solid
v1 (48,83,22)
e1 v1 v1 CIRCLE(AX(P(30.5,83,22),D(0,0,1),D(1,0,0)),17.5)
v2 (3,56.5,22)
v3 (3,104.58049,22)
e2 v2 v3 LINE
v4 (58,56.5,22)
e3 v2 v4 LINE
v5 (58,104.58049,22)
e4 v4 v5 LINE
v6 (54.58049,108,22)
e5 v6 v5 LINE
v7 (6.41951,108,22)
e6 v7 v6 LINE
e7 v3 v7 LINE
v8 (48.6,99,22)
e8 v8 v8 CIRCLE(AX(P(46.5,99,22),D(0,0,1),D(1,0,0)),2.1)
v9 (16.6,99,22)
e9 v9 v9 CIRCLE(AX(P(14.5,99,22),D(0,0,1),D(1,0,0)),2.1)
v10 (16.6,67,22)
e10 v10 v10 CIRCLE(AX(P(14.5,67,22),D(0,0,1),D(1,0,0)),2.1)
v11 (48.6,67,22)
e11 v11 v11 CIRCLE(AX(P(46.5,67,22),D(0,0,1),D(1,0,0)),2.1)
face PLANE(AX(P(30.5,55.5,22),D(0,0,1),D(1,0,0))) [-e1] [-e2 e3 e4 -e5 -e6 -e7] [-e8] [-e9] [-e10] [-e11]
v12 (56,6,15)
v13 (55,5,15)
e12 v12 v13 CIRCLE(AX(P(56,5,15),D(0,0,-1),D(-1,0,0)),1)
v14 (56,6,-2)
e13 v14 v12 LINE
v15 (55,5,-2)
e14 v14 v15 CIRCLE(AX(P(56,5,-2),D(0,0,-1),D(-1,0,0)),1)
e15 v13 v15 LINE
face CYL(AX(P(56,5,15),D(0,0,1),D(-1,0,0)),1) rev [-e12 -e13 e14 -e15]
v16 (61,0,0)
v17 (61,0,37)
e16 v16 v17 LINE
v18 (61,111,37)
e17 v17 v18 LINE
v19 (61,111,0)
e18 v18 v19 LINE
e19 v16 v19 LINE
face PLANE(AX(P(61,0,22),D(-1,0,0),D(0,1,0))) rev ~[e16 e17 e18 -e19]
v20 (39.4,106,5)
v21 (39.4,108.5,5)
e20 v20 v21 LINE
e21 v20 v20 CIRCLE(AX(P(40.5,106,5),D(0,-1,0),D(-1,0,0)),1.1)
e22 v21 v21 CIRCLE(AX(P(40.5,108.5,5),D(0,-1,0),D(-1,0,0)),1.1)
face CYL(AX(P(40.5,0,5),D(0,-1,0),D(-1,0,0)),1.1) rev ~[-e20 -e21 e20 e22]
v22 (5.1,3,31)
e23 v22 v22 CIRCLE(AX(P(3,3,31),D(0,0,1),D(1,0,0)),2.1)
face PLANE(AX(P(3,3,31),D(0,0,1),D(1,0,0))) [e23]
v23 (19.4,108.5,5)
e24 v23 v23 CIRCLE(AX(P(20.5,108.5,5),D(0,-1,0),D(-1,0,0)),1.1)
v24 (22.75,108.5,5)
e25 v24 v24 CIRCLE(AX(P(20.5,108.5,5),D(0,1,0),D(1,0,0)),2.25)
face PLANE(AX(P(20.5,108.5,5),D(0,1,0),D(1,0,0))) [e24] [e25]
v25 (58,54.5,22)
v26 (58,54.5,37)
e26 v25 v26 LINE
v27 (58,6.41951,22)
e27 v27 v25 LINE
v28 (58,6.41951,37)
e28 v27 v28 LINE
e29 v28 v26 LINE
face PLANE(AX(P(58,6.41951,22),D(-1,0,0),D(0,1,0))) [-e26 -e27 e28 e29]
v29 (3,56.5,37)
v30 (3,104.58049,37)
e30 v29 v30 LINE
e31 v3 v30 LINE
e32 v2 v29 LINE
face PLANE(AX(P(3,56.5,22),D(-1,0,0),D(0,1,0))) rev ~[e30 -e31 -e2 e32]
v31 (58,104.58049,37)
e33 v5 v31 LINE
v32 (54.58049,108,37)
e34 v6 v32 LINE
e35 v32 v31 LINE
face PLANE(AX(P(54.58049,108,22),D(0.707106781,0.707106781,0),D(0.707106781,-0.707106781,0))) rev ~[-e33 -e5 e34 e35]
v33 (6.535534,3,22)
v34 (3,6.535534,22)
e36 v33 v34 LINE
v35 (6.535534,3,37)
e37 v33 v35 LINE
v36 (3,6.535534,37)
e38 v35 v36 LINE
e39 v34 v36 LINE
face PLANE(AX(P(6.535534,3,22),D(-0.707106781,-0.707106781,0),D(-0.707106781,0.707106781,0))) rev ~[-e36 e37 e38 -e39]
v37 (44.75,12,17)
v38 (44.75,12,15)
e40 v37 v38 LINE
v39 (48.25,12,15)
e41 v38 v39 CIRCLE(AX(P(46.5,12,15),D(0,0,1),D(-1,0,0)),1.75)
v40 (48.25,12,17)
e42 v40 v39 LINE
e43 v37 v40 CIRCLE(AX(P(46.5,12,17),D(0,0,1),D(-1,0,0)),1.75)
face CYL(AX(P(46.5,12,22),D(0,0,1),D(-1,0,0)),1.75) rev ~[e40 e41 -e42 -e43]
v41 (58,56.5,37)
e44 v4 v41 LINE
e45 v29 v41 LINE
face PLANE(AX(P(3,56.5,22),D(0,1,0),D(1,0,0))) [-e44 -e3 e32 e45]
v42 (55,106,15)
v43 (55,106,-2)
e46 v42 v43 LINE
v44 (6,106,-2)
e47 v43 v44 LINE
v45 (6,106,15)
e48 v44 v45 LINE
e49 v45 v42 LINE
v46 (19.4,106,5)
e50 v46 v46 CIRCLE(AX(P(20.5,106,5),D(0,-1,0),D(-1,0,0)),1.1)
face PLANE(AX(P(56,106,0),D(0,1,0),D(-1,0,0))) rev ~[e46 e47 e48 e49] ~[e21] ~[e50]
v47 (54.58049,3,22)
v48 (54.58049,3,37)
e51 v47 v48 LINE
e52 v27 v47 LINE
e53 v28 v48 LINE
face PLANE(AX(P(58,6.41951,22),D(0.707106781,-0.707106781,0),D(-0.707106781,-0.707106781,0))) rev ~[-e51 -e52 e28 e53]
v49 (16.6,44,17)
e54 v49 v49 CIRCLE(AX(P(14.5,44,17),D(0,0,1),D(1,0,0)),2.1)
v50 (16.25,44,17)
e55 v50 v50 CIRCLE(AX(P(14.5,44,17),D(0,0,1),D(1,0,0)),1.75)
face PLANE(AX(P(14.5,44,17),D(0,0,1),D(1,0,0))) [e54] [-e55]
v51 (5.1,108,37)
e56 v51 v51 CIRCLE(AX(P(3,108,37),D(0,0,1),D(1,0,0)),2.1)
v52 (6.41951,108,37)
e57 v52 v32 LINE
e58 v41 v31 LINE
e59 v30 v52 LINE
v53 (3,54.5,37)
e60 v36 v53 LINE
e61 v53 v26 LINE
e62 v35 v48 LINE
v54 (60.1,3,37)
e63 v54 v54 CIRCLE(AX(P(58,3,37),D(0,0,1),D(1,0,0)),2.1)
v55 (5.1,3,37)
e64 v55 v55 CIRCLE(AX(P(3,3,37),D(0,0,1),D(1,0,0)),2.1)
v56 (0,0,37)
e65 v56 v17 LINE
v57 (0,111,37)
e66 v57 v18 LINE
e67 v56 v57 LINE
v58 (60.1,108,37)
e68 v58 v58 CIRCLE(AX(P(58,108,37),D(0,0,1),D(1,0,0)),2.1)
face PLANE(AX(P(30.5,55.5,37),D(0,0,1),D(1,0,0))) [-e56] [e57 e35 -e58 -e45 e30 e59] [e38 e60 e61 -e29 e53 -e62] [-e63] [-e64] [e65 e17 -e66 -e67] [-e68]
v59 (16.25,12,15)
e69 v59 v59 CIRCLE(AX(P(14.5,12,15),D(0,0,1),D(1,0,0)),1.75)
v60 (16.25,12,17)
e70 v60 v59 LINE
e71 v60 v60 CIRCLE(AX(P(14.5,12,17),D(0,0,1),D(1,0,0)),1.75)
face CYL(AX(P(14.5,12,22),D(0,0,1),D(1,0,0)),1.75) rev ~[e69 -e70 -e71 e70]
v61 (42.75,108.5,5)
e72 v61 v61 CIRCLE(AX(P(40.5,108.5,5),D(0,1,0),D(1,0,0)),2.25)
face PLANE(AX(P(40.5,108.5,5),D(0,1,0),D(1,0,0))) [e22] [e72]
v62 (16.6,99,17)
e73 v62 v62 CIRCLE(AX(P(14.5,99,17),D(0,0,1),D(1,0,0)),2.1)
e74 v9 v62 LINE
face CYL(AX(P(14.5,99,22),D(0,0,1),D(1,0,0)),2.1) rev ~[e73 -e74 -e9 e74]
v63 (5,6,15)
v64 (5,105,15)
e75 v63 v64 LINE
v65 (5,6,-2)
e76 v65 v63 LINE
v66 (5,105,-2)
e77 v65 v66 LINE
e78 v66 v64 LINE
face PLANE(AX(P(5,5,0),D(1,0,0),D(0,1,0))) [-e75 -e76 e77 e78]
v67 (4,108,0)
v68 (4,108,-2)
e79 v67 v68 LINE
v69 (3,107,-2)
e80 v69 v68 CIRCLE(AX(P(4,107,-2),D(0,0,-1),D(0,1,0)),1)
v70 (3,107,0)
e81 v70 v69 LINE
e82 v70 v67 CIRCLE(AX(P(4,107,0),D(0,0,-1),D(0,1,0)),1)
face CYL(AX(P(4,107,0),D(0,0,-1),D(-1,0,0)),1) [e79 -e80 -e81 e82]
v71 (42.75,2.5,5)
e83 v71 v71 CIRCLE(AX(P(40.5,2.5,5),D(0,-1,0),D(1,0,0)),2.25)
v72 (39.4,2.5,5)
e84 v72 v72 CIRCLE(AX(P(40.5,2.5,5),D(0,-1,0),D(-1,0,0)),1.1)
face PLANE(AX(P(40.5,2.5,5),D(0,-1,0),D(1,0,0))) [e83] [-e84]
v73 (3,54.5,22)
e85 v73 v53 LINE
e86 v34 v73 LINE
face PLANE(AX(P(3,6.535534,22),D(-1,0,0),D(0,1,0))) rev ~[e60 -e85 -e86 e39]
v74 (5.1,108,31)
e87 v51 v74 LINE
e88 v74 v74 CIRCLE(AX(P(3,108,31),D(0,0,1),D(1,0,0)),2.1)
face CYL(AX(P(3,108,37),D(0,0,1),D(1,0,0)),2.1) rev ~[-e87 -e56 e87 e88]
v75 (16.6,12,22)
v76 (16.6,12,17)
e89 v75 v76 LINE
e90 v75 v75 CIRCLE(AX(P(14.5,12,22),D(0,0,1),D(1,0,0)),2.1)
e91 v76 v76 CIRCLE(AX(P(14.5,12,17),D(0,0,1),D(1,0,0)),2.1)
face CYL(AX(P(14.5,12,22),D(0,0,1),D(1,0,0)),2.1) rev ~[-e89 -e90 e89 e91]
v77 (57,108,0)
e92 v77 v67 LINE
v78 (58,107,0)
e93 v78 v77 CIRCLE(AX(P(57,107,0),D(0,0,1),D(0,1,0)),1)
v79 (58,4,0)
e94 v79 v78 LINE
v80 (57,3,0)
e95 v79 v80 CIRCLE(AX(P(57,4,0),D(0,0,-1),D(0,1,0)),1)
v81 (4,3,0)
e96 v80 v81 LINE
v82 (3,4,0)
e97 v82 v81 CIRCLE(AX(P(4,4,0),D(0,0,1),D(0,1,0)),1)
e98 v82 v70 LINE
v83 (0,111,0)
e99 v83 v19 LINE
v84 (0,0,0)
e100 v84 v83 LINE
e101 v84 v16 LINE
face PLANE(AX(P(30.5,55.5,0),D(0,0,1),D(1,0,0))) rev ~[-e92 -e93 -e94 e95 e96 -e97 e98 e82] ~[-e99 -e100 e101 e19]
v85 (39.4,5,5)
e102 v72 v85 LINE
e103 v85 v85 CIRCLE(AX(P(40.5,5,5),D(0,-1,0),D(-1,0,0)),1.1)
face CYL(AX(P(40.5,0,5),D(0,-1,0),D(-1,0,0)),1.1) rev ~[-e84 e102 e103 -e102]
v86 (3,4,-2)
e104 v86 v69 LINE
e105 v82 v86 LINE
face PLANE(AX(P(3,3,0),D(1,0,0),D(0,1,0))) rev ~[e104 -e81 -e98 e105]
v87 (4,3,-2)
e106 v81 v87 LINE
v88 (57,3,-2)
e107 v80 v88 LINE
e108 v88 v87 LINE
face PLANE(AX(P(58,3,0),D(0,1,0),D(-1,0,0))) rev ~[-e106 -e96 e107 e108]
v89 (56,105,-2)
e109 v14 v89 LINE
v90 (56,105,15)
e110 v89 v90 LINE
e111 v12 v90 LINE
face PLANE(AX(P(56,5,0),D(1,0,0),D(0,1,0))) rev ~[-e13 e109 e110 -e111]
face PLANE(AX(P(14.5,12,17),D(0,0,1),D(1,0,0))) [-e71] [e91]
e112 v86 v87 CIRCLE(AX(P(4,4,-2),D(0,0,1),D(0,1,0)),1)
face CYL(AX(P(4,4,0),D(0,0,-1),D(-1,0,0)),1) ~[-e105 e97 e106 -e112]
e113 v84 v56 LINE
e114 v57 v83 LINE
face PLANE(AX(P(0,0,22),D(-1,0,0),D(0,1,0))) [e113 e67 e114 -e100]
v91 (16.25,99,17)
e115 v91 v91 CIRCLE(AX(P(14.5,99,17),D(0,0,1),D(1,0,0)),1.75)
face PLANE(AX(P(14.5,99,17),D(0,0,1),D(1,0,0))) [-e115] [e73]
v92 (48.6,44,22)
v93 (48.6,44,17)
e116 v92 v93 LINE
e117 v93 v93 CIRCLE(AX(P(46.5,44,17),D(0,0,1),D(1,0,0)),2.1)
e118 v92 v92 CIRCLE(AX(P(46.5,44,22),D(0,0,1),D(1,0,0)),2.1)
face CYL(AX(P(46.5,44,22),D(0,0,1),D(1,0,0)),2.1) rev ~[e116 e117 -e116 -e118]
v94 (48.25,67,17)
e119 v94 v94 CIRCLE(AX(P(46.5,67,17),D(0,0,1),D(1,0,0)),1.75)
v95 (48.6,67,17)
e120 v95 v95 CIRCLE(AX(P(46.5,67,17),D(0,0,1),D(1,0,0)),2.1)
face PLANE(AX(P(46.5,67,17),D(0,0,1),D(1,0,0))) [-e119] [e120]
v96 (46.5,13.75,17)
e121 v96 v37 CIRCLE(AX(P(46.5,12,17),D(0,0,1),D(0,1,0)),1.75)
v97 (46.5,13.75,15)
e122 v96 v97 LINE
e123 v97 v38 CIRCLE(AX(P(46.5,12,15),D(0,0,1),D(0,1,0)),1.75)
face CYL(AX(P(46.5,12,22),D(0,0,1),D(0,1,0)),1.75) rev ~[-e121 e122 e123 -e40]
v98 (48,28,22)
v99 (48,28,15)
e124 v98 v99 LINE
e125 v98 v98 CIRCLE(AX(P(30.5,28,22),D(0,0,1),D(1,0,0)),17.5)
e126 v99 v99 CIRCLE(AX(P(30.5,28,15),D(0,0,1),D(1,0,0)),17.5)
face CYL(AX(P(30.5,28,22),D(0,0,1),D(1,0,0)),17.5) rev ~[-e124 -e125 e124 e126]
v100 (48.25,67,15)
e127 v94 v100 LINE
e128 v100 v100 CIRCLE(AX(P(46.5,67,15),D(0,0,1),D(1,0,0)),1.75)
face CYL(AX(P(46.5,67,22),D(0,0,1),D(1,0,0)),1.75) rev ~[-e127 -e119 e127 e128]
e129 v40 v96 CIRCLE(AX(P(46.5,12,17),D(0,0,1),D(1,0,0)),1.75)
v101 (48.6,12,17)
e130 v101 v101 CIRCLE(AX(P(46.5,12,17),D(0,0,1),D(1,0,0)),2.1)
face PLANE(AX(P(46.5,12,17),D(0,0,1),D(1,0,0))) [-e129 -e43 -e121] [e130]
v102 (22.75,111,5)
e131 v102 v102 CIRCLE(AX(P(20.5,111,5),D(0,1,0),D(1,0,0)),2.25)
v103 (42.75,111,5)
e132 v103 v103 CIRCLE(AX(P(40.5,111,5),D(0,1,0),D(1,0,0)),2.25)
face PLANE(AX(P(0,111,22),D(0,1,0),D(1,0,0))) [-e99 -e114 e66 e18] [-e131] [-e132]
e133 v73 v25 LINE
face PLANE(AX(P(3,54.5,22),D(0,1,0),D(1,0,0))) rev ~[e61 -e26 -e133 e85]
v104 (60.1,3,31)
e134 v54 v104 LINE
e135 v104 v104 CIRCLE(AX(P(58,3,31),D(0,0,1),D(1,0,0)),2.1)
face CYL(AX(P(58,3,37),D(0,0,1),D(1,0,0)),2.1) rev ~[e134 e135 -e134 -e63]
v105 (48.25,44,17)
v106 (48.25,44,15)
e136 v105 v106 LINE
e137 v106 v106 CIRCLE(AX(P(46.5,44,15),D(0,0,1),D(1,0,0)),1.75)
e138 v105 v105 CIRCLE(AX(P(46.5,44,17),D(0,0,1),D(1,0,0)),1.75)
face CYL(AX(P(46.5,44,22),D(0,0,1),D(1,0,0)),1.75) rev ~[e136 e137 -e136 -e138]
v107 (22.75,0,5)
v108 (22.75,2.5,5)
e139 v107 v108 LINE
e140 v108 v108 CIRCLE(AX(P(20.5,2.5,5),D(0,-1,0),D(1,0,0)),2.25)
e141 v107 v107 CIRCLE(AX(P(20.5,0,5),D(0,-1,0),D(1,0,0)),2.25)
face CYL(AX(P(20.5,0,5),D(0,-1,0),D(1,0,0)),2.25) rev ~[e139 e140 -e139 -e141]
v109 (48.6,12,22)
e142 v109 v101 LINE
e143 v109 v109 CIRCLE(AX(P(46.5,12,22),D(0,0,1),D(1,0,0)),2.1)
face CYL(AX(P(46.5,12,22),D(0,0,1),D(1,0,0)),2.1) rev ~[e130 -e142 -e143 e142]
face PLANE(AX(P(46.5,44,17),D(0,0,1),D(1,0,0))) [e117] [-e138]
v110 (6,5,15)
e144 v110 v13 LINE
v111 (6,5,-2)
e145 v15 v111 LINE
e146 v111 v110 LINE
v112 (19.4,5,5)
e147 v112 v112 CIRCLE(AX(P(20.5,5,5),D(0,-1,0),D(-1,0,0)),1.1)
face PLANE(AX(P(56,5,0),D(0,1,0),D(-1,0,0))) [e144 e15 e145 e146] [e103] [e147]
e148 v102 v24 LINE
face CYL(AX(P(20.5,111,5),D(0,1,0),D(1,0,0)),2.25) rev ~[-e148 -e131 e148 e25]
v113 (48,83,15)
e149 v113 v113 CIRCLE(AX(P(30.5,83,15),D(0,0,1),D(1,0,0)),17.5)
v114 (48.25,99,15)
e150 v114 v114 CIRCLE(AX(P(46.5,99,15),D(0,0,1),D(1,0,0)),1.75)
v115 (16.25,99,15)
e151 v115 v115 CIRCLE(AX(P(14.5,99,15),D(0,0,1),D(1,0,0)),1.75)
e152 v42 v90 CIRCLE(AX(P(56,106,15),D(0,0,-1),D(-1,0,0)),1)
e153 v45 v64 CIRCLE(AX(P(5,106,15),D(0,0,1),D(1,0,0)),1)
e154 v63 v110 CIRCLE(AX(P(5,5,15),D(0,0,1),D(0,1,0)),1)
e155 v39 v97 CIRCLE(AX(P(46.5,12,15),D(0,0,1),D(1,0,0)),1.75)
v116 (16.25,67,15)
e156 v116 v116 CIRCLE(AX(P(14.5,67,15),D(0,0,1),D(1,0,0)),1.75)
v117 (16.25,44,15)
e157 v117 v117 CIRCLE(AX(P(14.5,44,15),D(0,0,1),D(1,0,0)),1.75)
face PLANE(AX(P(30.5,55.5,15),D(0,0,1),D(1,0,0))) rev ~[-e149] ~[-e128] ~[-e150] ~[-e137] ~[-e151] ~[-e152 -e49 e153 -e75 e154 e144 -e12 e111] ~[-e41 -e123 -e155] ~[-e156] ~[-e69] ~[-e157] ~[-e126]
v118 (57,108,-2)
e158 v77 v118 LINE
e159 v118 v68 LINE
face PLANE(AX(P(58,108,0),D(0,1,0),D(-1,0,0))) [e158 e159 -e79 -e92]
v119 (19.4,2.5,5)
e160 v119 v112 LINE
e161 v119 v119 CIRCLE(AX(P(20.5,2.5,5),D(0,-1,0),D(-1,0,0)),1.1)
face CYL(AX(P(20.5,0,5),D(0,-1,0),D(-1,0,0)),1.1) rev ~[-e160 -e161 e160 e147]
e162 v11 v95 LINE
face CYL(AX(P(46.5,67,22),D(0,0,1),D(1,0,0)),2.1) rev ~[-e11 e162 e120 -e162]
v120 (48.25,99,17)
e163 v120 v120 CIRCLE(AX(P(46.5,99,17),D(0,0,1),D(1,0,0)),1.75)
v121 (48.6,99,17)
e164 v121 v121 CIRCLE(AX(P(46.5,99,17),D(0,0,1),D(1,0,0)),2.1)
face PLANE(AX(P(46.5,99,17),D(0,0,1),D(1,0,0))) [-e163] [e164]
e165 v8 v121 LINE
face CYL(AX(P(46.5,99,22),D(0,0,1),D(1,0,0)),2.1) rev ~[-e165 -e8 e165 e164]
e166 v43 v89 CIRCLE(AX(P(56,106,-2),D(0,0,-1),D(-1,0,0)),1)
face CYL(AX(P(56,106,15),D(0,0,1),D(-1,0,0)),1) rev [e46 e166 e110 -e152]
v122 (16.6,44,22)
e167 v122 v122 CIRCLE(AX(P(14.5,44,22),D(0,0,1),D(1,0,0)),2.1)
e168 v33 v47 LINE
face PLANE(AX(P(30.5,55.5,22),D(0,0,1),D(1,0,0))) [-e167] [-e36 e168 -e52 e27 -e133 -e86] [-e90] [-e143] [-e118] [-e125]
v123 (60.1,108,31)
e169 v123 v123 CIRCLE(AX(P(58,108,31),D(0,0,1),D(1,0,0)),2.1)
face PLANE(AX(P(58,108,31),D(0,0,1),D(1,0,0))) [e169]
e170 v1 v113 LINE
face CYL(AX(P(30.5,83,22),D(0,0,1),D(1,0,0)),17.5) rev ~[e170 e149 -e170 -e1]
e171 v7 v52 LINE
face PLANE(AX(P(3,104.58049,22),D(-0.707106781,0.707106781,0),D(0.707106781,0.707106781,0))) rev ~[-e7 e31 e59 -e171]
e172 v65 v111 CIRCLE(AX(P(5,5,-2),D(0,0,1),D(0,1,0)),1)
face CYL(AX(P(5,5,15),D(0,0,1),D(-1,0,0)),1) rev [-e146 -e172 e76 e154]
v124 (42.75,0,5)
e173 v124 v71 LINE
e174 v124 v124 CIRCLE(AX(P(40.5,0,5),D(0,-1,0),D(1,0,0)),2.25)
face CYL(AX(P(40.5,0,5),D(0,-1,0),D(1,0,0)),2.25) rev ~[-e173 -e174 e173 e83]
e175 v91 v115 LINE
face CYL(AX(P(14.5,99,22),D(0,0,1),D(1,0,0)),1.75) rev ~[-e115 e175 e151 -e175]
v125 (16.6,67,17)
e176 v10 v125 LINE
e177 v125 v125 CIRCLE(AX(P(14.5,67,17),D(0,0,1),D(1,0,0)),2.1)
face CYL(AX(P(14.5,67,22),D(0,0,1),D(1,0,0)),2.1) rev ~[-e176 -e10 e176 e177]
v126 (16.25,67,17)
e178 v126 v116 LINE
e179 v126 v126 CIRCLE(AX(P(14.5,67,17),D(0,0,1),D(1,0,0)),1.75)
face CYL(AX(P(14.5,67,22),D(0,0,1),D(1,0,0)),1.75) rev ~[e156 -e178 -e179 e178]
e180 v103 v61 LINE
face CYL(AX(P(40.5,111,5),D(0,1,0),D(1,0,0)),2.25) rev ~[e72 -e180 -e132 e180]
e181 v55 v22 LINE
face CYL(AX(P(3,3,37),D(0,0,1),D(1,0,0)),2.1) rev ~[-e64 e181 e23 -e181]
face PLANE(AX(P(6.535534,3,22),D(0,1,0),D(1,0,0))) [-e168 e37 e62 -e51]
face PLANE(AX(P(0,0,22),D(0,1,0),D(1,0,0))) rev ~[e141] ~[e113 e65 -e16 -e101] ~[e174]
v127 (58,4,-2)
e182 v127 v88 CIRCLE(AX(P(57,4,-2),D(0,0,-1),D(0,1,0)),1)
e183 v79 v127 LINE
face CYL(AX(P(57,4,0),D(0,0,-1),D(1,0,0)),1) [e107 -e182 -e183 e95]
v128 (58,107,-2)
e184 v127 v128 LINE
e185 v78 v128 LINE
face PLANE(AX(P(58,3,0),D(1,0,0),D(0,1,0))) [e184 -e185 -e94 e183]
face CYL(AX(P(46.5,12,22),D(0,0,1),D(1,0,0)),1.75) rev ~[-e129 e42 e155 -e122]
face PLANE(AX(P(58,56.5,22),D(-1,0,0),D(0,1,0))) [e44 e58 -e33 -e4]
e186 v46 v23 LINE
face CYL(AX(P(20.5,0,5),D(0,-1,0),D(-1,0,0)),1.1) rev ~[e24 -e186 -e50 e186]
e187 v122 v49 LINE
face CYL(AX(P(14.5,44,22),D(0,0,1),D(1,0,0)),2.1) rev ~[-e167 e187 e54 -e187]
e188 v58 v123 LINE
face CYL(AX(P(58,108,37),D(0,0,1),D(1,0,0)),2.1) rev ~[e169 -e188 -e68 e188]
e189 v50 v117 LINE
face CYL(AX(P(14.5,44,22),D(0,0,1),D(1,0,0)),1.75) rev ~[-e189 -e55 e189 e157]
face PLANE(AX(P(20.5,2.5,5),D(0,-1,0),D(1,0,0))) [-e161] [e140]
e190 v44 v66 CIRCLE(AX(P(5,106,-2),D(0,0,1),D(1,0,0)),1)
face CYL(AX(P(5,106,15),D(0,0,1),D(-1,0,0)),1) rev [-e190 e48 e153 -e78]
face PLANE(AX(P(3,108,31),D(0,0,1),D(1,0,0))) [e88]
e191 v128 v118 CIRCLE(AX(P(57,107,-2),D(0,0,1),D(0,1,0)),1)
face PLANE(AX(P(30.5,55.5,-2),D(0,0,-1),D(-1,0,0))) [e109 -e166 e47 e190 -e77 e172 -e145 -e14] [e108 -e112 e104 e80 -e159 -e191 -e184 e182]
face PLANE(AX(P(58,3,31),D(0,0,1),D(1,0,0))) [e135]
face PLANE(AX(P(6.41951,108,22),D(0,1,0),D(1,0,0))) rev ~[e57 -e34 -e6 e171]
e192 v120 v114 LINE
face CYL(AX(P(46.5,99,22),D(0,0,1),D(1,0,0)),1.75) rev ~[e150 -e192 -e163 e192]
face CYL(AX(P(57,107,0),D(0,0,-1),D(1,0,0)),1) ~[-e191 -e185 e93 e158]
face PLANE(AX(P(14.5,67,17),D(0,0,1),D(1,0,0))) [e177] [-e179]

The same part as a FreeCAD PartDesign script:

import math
import FreeCAD as App
import Part
import Sketcher
Q = App.Units.Quantity


def edges_at(feature, points):
    """Names of the edges that pass closest to the given points."""
    edges = feature.Shape.Edges
    near = lambda p: min(range(len(edges)), key=lambda i: edges[i].distToShape(Part.Vertex(*p))[0])
    return sorted({f"Edge{near(p) + 1}" for p in points})

doc = App.newDocument("Part")
params = doc.addObject("Spreadsheet::Sheet", "Params")
for row, (alias, value) in enumerate([
    ("sketch1_width", "61 mm"),
    ("sketch1_width2", "51 mm"),
    ("sketch1_height", "111 mm"),
    ("sketch1_height2", "101 mm"),
    ("pad1_length", "15 mm"),
    ("sketch2_width", "61 mm"),
    ("sketch2_height", "111 mm"),
    ("pad2_length", "7 mm"),
    ("sketch3_diameter", "35 mm"),
    ("sketch3_diameter2", "3.5 mm"),
    ("sketch4_diameter", "4.2 mm"),
    ("pocket2_length", "5 mm"),
    ("sketch5_width", "55 mm"),
    ("sketch5_width2", "51 mm"),
    ("sketch5_height", "105 mm"),
    ("sketch5_height2", "101 mm"),
    ("pad3_length", "2 mm"),
    ("fillet_radius", "1 mm"),
    ("sketch6_diameter", "2.2 mm"),
    ("sketch7_diameter", "4.5 mm"),
    ("pocket4_length", "2.5 mm"),
    ("sketch8_diameter", "4.5 mm"),
    ("pocket5_length", "2.5 mm"),
    ("sketch9_diameter", "2 mm"),
    ("pocket6_length", "17 mm"),
    ("sketch10_width", "61 mm"),
    ("sketch10_width2", "55 mm"),
    ("sketch10_height", "111 mm"),
    ("sketch10_length", "5 mm"),
    ("pad4_length", "15 mm"),
    ("sketch11_diameter", "4.2 mm"),
    ("pocket7_length", "6 mm"),
], start=1):
    params.set(f"A{row}", alias)
    params.set(f"B{row}", "=" + value)
    params.setAlias(f"B{row}", alias)

body = doc.addObject("PartDesign::Body", "Body")

# Sketch on XY plane
sketch1 = doc.addObject("Sketcher::SketchObject", "Sketch")
body.addObject(sketch1)
sketch1.AttachmentSupport = (doc.XY_Plane, [""])
sketch1.MapMode = "FlatFace"
sketch1.addGeometry([
    Part.LineSegment(App.Vector(0, 111, 0), App.Vector(0, 0, 0)),  # 0
    Part.LineSegment(App.Vector(0, 0, 0), App.Vector(61, 0, 0)),  # 1
    Part.LineSegment(App.Vector(61, 0, 0), App.Vector(61, 111, 0)),  # 2
    Part.LineSegment(App.Vector(61, 111, 0), App.Vector(0, 111, 0)),  # 3
    Part.LineSegment(App.Vector(56, 5, 0), App.Vector(5, 5, 0)),  # 4
    Part.LineSegment(App.Vector(5, 5, 0), App.Vector(5, 106, 0)),  # 5
    Part.LineSegment(App.Vector(5, 106, 0), App.Vector(56, 106, 0)),  # 6
    Part.LineSegment(App.Vector(56, 106, 0), App.Vector(56, 5, 0)),  # 7
], False)
sketch1.addConstraint([
    Sketcher.Constraint("Coincident", 0, 2, 1, 1),
    Sketcher.Constraint("Coincident", 1, 2, 2, 1),
    Sketcher.Constraint("Coincident", 2, 2, 3, 1),
    Sketcher.Constraint("Coincident", 3, 2, 0, 1),
    Sketcher.Constraint("Coincident", 4, 2, 5, 1),
    Sketcher.Constraint("Coincident", 5, 2, 6, 1),
    Sketcher.Constraint("Coincident", 6, 2, 7, 1),
    Sketcher.Constraint("Coincident", 7, 2, 4, 1),
    Sketcher.Constraint("Vertical", 0),
    Sketcher.Constraint("Horizontal", 1),
    Sketcher.Constraint("Vertical", 2),
    Sketcher.Constraint("Horizontal", 3),
    Sketcher.Constraint("Horizontal", 4),
    Sketcher.Constraint("Vertical", 5),
    Sketcher.Constraint("Horizontal", 6),
    Sketcher.Constraint("Vertical", 7),
    Sketcher.Constraint("Coincident", 0, 2, -1, 1),
    Sketcher.Constraint("DistanceX", 1, 1, 1, 2, Q("61 mm")),
    Sketcher.Constraint("DistanceX", 4, 2, 4, 1, Q("51 mm")),
    Sketcher.Constraint("DistanceY", 0, 2, 0, 1, Q("111 mm")),
    Sketcher.Constraint("DistanceY", 5, 1, 5, 2, Q("101 mm")),
    Sketcher.Constraint("DistanceX", -1, 1, 4, 2, Q("5 mm")),
    Sketcher.Constraint("DistanceY", -1, 1, 4, 2, Q("5 mm")),
])
sketch1.setExpression("Constraints[17]", "Params.sketch1_width")
sketch1.setExpression("Constraints[18]", "Params.sketch1_width2")
sketch1.setExpression("Constraints[19]", "Params.sketch1_height")
sketch1.setExpression("Constraints[20]", "Params.sketch1_height2")
pad1 = doc.addObject("PartDesign::Pad", "Pad")
body.addObject(pad1)
pad1.Profile = sketch1
pad1.setExpression("Length", "Params.pad1_length")

# Sketch on XY plane
sketch2 = doc.addObject("Sketcher::SketchObject", "Sketch001")
body.addObject(sketch2)
sketch2.AttachmentSupport = (doc.XY_Plane, [""])
sketch2.MapMode = "FlatFace"
sketch2.AttachmentOffset = App.Placement(App.Vector(0, 0, 15), App.Rotation())
sketch2.addGeometry([
    Part.LineSegment(App.Vector(0, 111, 0), App.Vector(0, 0, 0)),
    Part.LineSegment(App.Vector(0, 0, 0), App.Vector(61, 0, 0)),
    Part.LineSegment(App.Vector(61, 0, 0), App.Vector(61, 111, 0)),
    Part.LineSegment(App.Vector(61, 111, 0), App.Vector(0, 111, 0)),
], False)
sketch2.addConstraint([
    Sketcher.Constraint("Coincident", 0, 2, 1, 1),
    Sketcher.Constraint("Coincident", 1, 2, 2, 1),
    Sketcher.Constraint("Coincident", 2, 2, 3, 1),
    Sketcher.Constraint("Coincident", 3, 2, 0, 1),
    Sketcher.Constraint("Vertical", 0),
    Sketcher.Constraint("Horizontal", 1),
    Sketcher.Constraint("Vertical", 2),
    Sketcher.Constraint("Horizontal", 3),
    Sketcher.Constraint("Coincident", 0, 2, -1, 1),
    Sketcher.Constraint("DistanceX", 1, 1, 1, 2, Q("61 mm")),
    Sketcher.Constraint("DistanceY", 0, 2, 0, 1, Q("111 mm")),
])
sketch2.setExpression("Constraints[9]", "Params.sketch2_width")
sketch2.setExpression("Constraints[10]", "Params.sketch2_height")
pad2 = doc.addObject("PartDesign::Pad", "Pad001")
body.addObject(pad2)
pad2.Profile = sketch2
pad2.setExpression("Length", "Params.pad2_length")

# Sketch on XY plane
sketch3 = doc.addObject("Sketcher::SketchObject", "Sketch002")
body.addObject(sketch3)
sketch3.AttachmentSupport = (doc.XY_Plane, [""])
sketch3.MapMode = "FlatFace"
sketch3.AttachmentOffset = App.Placement(App.Vector(0, 0, 22), App.Rotation())
sketch3.addGeometry([
    Part.Circle(App.Vector(30.5, 83, 0), App.Vector(0, 0, 1), 17.5),  # 0
    Part.Circle(App.Vector(30.5, 28, 0), App.Vector(0, 0, 1), 17.5),  # 1
    Part.ArcOfCircle(Part.Circle(App.Vector(46.5, 12, 0), App.Vector(0, 0, 1), 1.75), math.radians(90), math.radians(180)),  # 2
    Part.ArcOfCircle(Part.Circle(App.Vector(46.5, 12, 0), App.Vector(0, 0, 1), 1.75), math.radians(180), math.radians(360)),  # 3
    Part.ArcOfCircle(Part.Circle(App.Vector(46.5, 12, 0), App.Vector(0, 0, 1), 1.75), math.radians(0), math.radians(90)),  # 4
    Part.Circle(App.Vector(46.5, 99, 0), App.Vector(0, 0, 1), 1.75),  # 5
    Part.Circle(App.Vector(14.5, 99, 0), App.Vector(0, 0, 1), 1.75),  # 6
    Part.Circle(App.Vector(14.5, 67, 0), App.Vector(0, 0, 1), 1.75),  # 7
    Part.Circle(App.Vector(46.5, 67, 0), App.Vector(0, 0, 1), 1.75),  # 8
    Part.Circle(App.Vector(46.5, 44, 0), App.Vector(0, 0, 1), 1.75),  # 9
    Part.Circle(App.Vector(14.5, 44, 0), App.Vector(0, 0, 1), 1.75),  # 10
    Part.Circle(App.Vector(14.5, 12, 0), App.Vector(0, 0, 1), 1.75),  # 11
], False)
sketch3.addConstraint([
    Sketcher.Constraint("Tangent", 2, 2, 3, 1),
    Sketcher.Constraint("Tangent", 3, 2, 4, 1),
    Sketcher.Constraint("Tangent", 4, 2, 2, 1),
    Sketcher.Constraint("Equal", 0, 1),
    Sketcher.Constraint("Equal", 4, 5),
    Sketcher.Constraint("Equal", 5, 6),
    Sketcher.Constraint("Equal", 6, 7),
    Sketcher.Constraint("Equal", 7, 8),
    Sketcher.Constraint("Equal", 8, 9),
    Sketcher.Constraint("Equal", 9, 10),
    Sketcher.Constraint("Equal", 10, 11),
    Sketcher.Constraint("Horizontal", 5, 3, 6, 3),
    Sketcher.Constraint("Horizontal", 7, 3, 8, 3),
    Sketcher.Constraint("Horizontal", 9, 3, 10, 3),
    Sketcher.Constraint("Horizontal", 4, 3, 11, 3),
    Sketcher.Constraint("Horizontal", 11, 3, 2, 2),
    Sketcher.Constraint("Horizontal", 2, 2, 3, 2),
    Sketcher.Constraint("Vertical", 0, 3, 1, 3),
    Sketcher.Constraint("Vertical", 4, 3, 5, 3),
    Sketcher.Constraint("Vertical", 6, 3, 7, 3),
    Sketcher.Constraint("Vertical", 5, 3, 8, 3),
    Sketcher.Constraint("Vertical", 8, 3, 9, 3),
    Sketcher.Constraint("Vertical", 7, 3, 10, 3),
    Sketcher.Constraint("Vertical", 10, 3, 11, 3),
    Sketcher.Constraint("Vertical", 9, 3, 4, 2),
    Sketcher.Constraint("Diameter", 0, Q("35 mm")),
    Sketcher.Constraint("Diameter", 5, Q("3.5 mm")),
    Sketcher.Constraint("DistanceY", -1, 1, 0, 3, Q("83 mm")),
    Sketcher.Constraint("DistanceY", -1, 1, 1, 3, Q("28 mm")),
    Sketcher.Constraint("DistanceY", -1, 1, 2, 3, Q("12 mm")),
    Sketcher.Constraint("DistanceY", -1, 1, 5, 3, Q("99 mm")),
    Sketcher.Constraint("DistanceY", -1, 1, 7, 3, Q("67 mm")),
    Sketcher.Constraint("DistanceY", -1, 1, 9, 3, Q("44 mm")),
    Sketcher.Constraint("DistanceX", 1, 3, 2, 3, Q("16 mm")),
    Sketcher.Constraint("DistanceX", 6, 3, 0, 3, Q("16 mm")),
    Sketcher.Constraint("DistanceX", -1, 1, 0, 3, Q("30.5 mm")),
])
sketch3.setExpression("Constraints[25]", "Params.sketch3_diameter")
sketch3.setExpression("Constraints[26]", "Params.sketch3_diameter2")
pocket1 = doc.addObject("PartDesign::Pocket", "Pocket")
body.addObject(pocket1)
pocket1.Profile = sketch3
pocket1.Type = "ThroughAll"

# Sketch on XY plane
sketch4 = doc.addObject("Sketcher::SketchObject", "Sketch003")
body.addObject(sketch4)
sketch4.AttachmentSupport = (doc.XY_Plane, [""])
sketch4.MapMode = "FlatFace"
sketch4.AttachmentOffset = App.Placement(App.Vector(0, 0, 22), App.Rotation())
sketch4.addGeometry([
    Part.Circle(App.Vector(14.5, 99, 0), App.Vector(0, 0, 1), 2.1),  # 0
    Part.Circle(App.Vector(46.5, 99, 0), App.Vector(0, 0, 1), 2.1),  # 1
    Part.Circle(App.Vector(46.5, 67, 0), App.Vector(0, 0, 1), 2.1),  # 2
    Part.Circle(App.Vector(46.5, 44, 0), App.Vector(0, 0, 1), 2.1),  # 3
    Part.Circle(App.Vector(14.5, 67, 0), App.Vector(0, 0, 1), 2.1),  # 4
    Part.Circle(App.Vector(14.5, 44, 0), App.Vector(0, 0, 1), 2.1),  # 5
    Part.Circle(App.Vector(14.5, 12, 0), App.Vector(0, 0, 1), 2.1),  # 6
    Part.Circle(App.Vector(46.5, 12, 0), App.Vector(0, 0, 1), 2.1),  # 7
], False)
sketch4.addConstraint([
    Sketcher.Constraint("Equal", 0, 1),
    Sketcher.Constraint("Equal", 1, 2),
    Sketcher.Constraint("Equal", 2, 3),
    Sketcher.Constraint("Equal", 3, 4),
    Sketcher.Constraint("Equal", 4, 5),
    Sketcher.Constraint("Equal", 5, 6),
    Sketcher.Constraint("Equal", 6, 7),
    Sketcher.Constraint("Horizontal", 0, 3, 1, 3),
    Sketcher.Constraint("Horizontal", 2, 3, 4, 3),
    Sketcher.Constraint("Horizontal", 3, 3, 5, 3),
    Sketcher.Constraint("Horizontal", 6, 3, 7, 3),
    Sketcher.Constraint("Vertical", 1, 3, 2, 3),
    Sketcher.Constraint("Vertical", 2, 3, 3, 3),
    Sketcher.Constraint("Vertical", 0, 3, 4, 3),
    Sketcher.Constraint("Vertical", 4, 3, 5, 3),
    Sketcher.Constraint("Vertical", 5, 3, 6, 3),
    Sketcher.Constraint("Vertical", 3, 3, 7, 3),
    Sketcher.Constraint("Diameter", 0, Q("4.2 mm")),
    Sketcher.Constraint("DistanceY", -1, 1, 0, 3, Q("99 mm")),
    Sketcher.Constraint("DistanceY", -1, 1, 2, 3, Q("67 mm")),
    Sketcher.Constraint("DistanceY", -1, 1, 3, 3, Q("44 mm")),
    Sketcher.Constraint("DistanceY", -1, 1, 6, 3, Q("12 mm")),
    Sketcher.Constraint("DistanceX", 0, 3, 1, 3, Q("32 mm")),
    Sketcher.Constraint("DistanceX", -1, 1, 0, 3, Q("14.5 mm")),
])
sketch4.setExpression("Constraints[17]", "Params.sketch4_diameter")
pocket2 = doc.addObject("PartDesign::Pocket", "Pocket001")
body.addObject(pocket2)
pocket2.Profile = sketch4
pocket2.setExpression("Length", "Params.pocket2_length")

# Sketch on XY plane
sketch5 = doc.addObject("Sketcher::SketchObject", "Sketch004")
body.addObject(sketch5)
sketch5.AttachmentSupport = (doc.XY_Plane, [""])
sketch5.MapMode = "FlatFace"
sketch5.addGeometry([
    Part.LineSegment(App.Vector(58, 108, 0), App.Vector(58, 3, 0)),  # 0
    Part.LineSegment(App.Vector(58, 3, 0), App.Vector(3, 3, 0)),  # 1
    Part.LineSegment(App.Vector(3, 3, 0), App.Vector(3, 108, 0)),  # 2
    Part.LineSegment(App.Vector(3, 108, 0), App.Vector(58, 108, 0)),  # 3
    Part.LineSegment(App.Vector(5, 5, 0), App.Vector(56, 5, 0)),  # 4
    Part.LineSegment(App.Vector(56, 5, 0), App.Vector(56, 106, 0)),  # 5
    Part.LineSegment(App.Vector(56, 106, 0), App.Vector(5, 106, 0)),  # 6
    Part.LineSegment(App.Vector(5, 106, 0), App.Vector(5, 5, 0)),  # 7
], False)
sketch5.addConstraint([
    Sketcher.Constraint("Coincident", 0, 2, 1, 1),
    Sketcher.Constraint("Coincident", 1, 2, 2, 1),
    Sketcher.Constraint("Coincident", 2, 2, 3, 1),
    Sketcher.Constraint("Coincident", 3, 2, 0, 1),
    Sketcher.Constraint("Coincident", 4, 2, 5, 1),
    Sketcher.Constraint("Coincident", 5, 2, 6, 1),
    Sketcher.Constraint("Coincident", 6, 2, 7, 1),
    Sketcher.Constraint("Coincident", 7, 2, 4, 1),
    Sketcher.Constraint("Vertical", 0),
    Sketcher.Constraint("Horizontal", 1),
    Sketcher.Constraint("Vertical", 2),
    Sketcher.Constraint("Horizontal", 3),
    Sketcher.Constraint("Horizontal", 4),
    Sketcher.Constraint("Vertical", 5),
    Sketcher.Constraint("Horizontal", 6),
    Sketcher.Constraint("Vertical", 7),
    Sketcher.Constraint("DistanceX", 1, 2, 1, 1, Q("55 mm")),
    Sketcher.Constraint("DistanceX", 4, 1, 4, 2, Q("51 mm")),
    Sketcher.Constraint("DistanceY", 0, 2, 0, 1, Q("105 mm")),
    Sketcher.Constraint("DistanceY", 5, 1, 5, 2, Q("101 mm")),
    Sketcher.Constraint("DistanceX", -1, 1, 0, 2, Q("58 mm")),
    Sketcher.Constraint("DistanceY", -1, 1, 0, 2, Q("3 mm")),
    Sketcher.Constraint("DistanceX", -1, 1, 4, 2, Q("56 mm")),
    Sketcher.Constraint("DistanceY", -1, 1, 4, 2, Q("5 mm")),
])
sketch5.setExpression("Constraints[16]", "Params.sketch5_width")
sketch5.setExpression("Constraints[17]", "Params.sketch5_width2")
sketch5.setExpression("Constraints[18]", "Params.sketch5_height")
sketch5.setExpression("Constraints[19]", "Params.sketch5_height2")
pad3 = doc.addObject("PartDesign::Pad", "Pad002")
body.addObject(pad3)
pad3.Profile = sketch5
pad3.setExpression("Length", "Params.pad3_length")
pad3.Reversed = True
doc.recompute()

fillet = doc.addObject("PartDesign::Fillet", "Fillet")
body.addObject(fillet)
fillet.Base = (pad3, edges_at(pad3, [
    (58, 3, -1),
    (3, 3, -1),
    (3, 108, -1),
    (58, 108, -1),
]))
fillet.setExpression("Radius", "Params.fillet_radius")

# Sketch on XZ plane
sketch6 = doc.addObject("Sketcher::SketchObject", "Sketch005")
body.addObject(sketch6)
sketch6.AttachmentSupport = (doc.XZ_Plane, [""])
sketch6.MapMode = "FlatFace"
sketch6.addGeometry([
    Part.Circle(App.Vector(20.5, 5, 0), App.Vector(0, 0, 1), 1.1),
    Part.Circle(App.Vector(40.5, 5, 0), App.Vector(0, 0, 1), 1.1),
], False)
sketch6.addConstraint([
    Sketcher.Constraint("Equal", 0, 1),
    Sketcher.Constraint("Horizontal", 0, 3, 1, 3),
    Sketcher.Constraint("Diameter", 0, Q("2.2 mm")),
    Sketcher.Constraint("DistanceY", -1, 1, 0, 3, Q("5 mm")),
    Sketcher.Constraint("DistanceX", 0, 3, 1, 3, Q("20 mm")),
    Sketcher.Constraint("DistanceX", -1, 1, 0, 3, Q("20.5 mm")),
])
sketch6.setExpression("Constraints[2]", "Params.sketch6_diameter")
pocket3 = doc.addObject("PartDesign::Pocket", "Pocket002")
body.addObject(pocket3)
pocket3.Profile = sketch6
pocket3.Type = "ThroughAll"

# Sketch on XZ plane
sketch7 = doc.addObject("Sketcher::SketchObject", "Sketch006")
body.addObject(sketch7)
sketch7.AttachmentSupport = (doc.XZ_Plane, [""])
sketch7.MapMode = "FlatFace"
sketch7.addGeometry([
    Part.Circle(App.Vector(20.5, 5, 0), App.Vector(0, 0, 1), 2.25),
    Part.Circle(App.Vector(40.5, 5, 0), App.Vector(0, 0, 1), 2.25),
], False)
sketch7.addConstraint([
    Sketcher.Constraint("Equal", 0, 1),
    Sketcher.Constraint("Horizontal", 0, 3, 1, 3),
    Sketcher.Constraint("Diameter", 0, Q("4.5 mm")),
    Sketcher.Constraint("DistanceY", -1, 1, 0, 3, Q("5 mm")),
    Sketcher.Constraint("DistanceX", 0, 3, 1, 3, Q("20 mm")),
    Sketcher.Constraint("DistanceX", -1, 1, 0, 3, Q("20.5 mm")),
])
sketch7.setExpression("Constraints[2]", "Params.sketch7_diameter")
pocket4 = doc.addObject("PartDesign::Pocket", "Pocket003")
body.addObject(pocket4)
pocket4.Profile = sketch7
pocket4.setExpression("Length", "Params.pocket4_length")

# Sketch on XZ plane
sketch8 = doc.addObject("Sketcher::SketchObject", "Sketch007")
body.addObject(sketch8)
sketch8.AttachmentSupport = (doc.XZ_Plane, [""])
sketch8.MapMode = "FlatFace"
sketch8.AttachmentOffset = App.Placement(App.Vector(0, 0, -111), App.Rotation())
sketch8.addGeometry([
    Part.Circle(App.Vector(40.5, 5, 0), App.Vector(0, 0, 1), 2.25),
    Part.Circle(App.Vector(20.5, 5, 0), App.Vector(0, 0, 1), 2.25),
], False)
sketch8.addConstraint([
    Sketcher.Constraint("Equal", 0, 1),
    Sketcher.Constraint("Horizontal", 0, 3, 1, 3),
    Sketcher.Constraint("Diameter", 0, Q("4.5 mm")),
    Sketcher.Constraint("DistanceY", -1, 1, 0, 3, Q("5 mm")),
    Sketcher.Constraint("DistanceX", 1, 3, 0, 3, Q("20 mm")),
    Sketcher.Constraint("DistanceX", -1, 1, 0, 3, Q("40.5 mm")),
])
sketch8.setExpression("Constraints[2]", "Params.sketch8_diameter")
pocket5 = doc.addObject("PartDesign::Pocket", "Pocket004")
body.addObject(pocket5)
pocket5.Profile = sketch8
pocket5.setExpression("Length", "Params.pocket5_length")
pocket5.Reversed = True

# Sketch on XY plane
sketch9 = doc.addObject("Sketcher::SketchObject", "Sketch008")
body.addObject(sketch9)
sketch9.AttachmentSupport = (doc.XY_Plane, [""])
sketch9.MapMode = "FlatFace"
sketch9.AttachmentOffset = App.Placement(App.Vector(0, 0, 15), App.Rotation())
sketch9.addGeometry([
    Part.Circle(App.Vector(56, 106, 0), App.Vector(0, 0, 1), 1),
    Part.Circle(App.Vector(5, 106, 0), App.Vector(0, 0, 1), 1),
    Part.Circle(App.Vector(5, 5, 0), App.Vector(0, 0, 1), 1),
    Part.Circle(App.Vector(56, 5, 0), App.Vector(0, 0, 1), 1),
], False)
sketch9.addConstraint([
    Sketcher.Constraint("Equal", 0, 1),
    Sketcher.Constraint("Equal", 1, 2),
    Sketcher.Constraint("Equal", 2, 3),
    Sketcher.Constraint("Horizontal", 0, 3, 1, 3),
    Sketcher.Constraint("Horizontal", 2, 3, 3, 3),
    Sketcher.Constraint("Vertical", 1, 3, 2, 3),
    Sketcher.Constraint("Vertical", 0, 3, 3, 3),
    Sketcher.Constraint("Diameter", 0, Q("2 mm")),
    Sketcher.Constraint("DistanceX", -1, 1, 0, 3, Q("56 mm")),
    Sketcher.Constraint("DistanceY", -1, 1, 0, 3, Q("106 mm")),
    Sketcher.Constraint("DistanceX", -1, 1, 1, 3, Q("5 mm")),
    Sketcher.Constraint("DistanceY", -1, 1, 2, 3, Q("5 mm")),
])
sketch9.setExpression("Constraints[7]", "Params.sketch9_diameter")
pocket6 = doc.addObject("PartDesign::Pocket", "Pocket005")
body.addObject(pocket6)
pocket6.Profile = sketch9
pocket6.setExpression("Length", "Params.pocket6_length")

# Sketch on XY plane
sketch10 = doc.addObject("Sketcher::SketchObject", "Sketch009")
body.addObject(sketch10)
sketch10.AttachmentSupport = (doc.XY_Plane, [""])
sketch10.MapMode = "FlatFace"
sketch10.AttachmentOffset = App.Placement(App.Vector(0, 0, 22), App.Rotation())
sketch10.addGeometry([
    Part.LineSegment(App.Vector(0, 111, 0), App.Vector(0, 0, 0)),  # 0
    Part.LineSegment(App.Vector(0, 0, 0), App.Vector(61, 0, 0)),  # 1
    Part.LineSegment(App.Vector(61, 0, 0), App.Vector(61, 111, 0)),  # 2
    Part.LineSegment(App.Vector(61, 111, 0), App.Vector(0, 111, 0)),  # 3
    Part.LineSegment(App.Vector(54.58049, 3, 0), App.Vector(6.535534, 3, 0)),  # 4
    Part.LineSegment(App.Vector(6.535534, 3, 0), App.Vector(3, 6.535534, 0)),  # 5
    Part.LineSegment(App.Vector(3, 6.535534, 0), App.Vector(3, 54.5, 0)),  # 6
    Part.LineSegment(App.Vector(3, 54.5, 0), App.Vector(58, 54.5, 0)),  # 7
    Part.LineSegment(App.Vector(58, 54.5, 0), App.Vector(58, 6.41951, 0)),  # 8
    Part.LineSegment(App.Vector(58, 6.41951, 0), App.Vector(54.58049, 3, 0)),  # 9
    Part.LineSegment(App.Vector(3, 56.5, 0), App.Vector(3, 104.58049, 0)),  # 10
    Part.LineSegment(App.Vector(3, 104.58049, 0), App.Vector(6.41951, 108, 0)),  # 11
    Part.LineSegment(App.Vector(6.41951, 108, 0), App.Vector(54.58049, 108, 0)),  # 12
    Part.LineSegment(App.Vector(54.58049, 108, 0), App.Vector(58, 104.58049, 0)),  # 13
    Part.LineSegment(App.Vector(58, 104.58049, 0), App.Vector(58, 56.5, 0)),  # 14
    Part.LineSegment(App.Vector(58, 56.5, 0), App.Vector(3, 56.5, 0)),  # 15
], False)
sketch10.addConstraint([
    Sketcher.Constraint("Coincident", 0, 2, 1, 1),
    Sketcher.Constraint("Coincident", 1, 2, 2, 1),
    Sketcher.Constraint("Coincident", 2, 2, 3, 1),
    Sketcher.Constraint("Coincident", 3, 2, 0, 1),
    Sketcher.Constraint("Coincident", 4, 2, 5, 1),
    Sketcher.Constraint("Coincident", 5, 2, 6, 1),
    Sketcher.Constraint("Coincident", 6, 2, 7, 1),
    Sketcher.Constraint("Coincident", 7, 2, 8, 1),
    Sketcher.Constraint("Coincident", 8, 2, 9, 1),
    Sketcher.Constraint("Coincident", 9, 2, 4, 1),
    Sketcher.Constraint("Coincident", 10, 2, 11, 1),
    Sketcher.Constraint("Coincident", 11, 2, 12, 1),
    Sketcher.Constraint("Coincident", 12, 2, 13, 1),
    Sketcher.Constraint("Coincident", 13, 2, 14, 1),
    Sketcher.Constraint("Coincident", 14, 2, 15, 1),
    Sketcher.Constraint("Coincident", 15, 2, 10, 1),
    Sketcher.Constraint("Vertical", 0),
    Sketcher.Constraint("Horizontal", 1),
    Sketcher.Constraint("Vertical", 2),
    Sketcher.Constraint("Horizontal", 3),
    Sketcher.Constraint("Horizontal", 4),
    Sketcher.Constraint("Vertical", 6),
    Sketcher.Constraint("Horizontal", 7),
    Sketcher.Constraint("Vertical", 8),
    Sketcher.Constraint("Vertical", 10),
    Sketcher.Constraint("Horizontal", 12),
    Sketcher.Constraint("Vertical", 14),
    Sketcher.Constraint("Horizontal", 15),
    Sketcher.Constraint("Coincident", 0, 2, -1, 1),
    Sketcher.Constraint("Perpendicular", 5, 9),
    Sketcher.Constraint("Parallel", 9, 11),
    Sketcher.Constraint("Perpendicular", 11, 13),
    Sketcher.Constraint("Horizontal", 10, 2, 13, 2),
    Sketcher.Constraint("Vertical", 6, 2, 10, 2),
    Sketcher.Constraint("Vertical", 9, 2, 12, 2),
    Sketcher.Constraint("Vertical", 8, 2, 13, 2),
    Sketcher.Constraint("Equal", 8, 10),
    Sketcher.Constraint("Equal", 9, 11),
    Sketcher.Constraint("DistanceX", 1, 1, 1, 2, Q("61 mm")),
    Sketcher.Constraint("DistanceX", 7, 1, 7, 2, Q("55 mm")),
    Sketcher.Constraint("DistanceY", 0, 2, 0, 1, Q("111 mm")),
    Sketcher.Constraint("Distance", 5, Q("5 mm")),
    Sketcher.Constraint("DistanceY", -1, 1, 4, 2, Q("3 mm")),
    Sketcher.Constraint("DistanceX", -1, 1, 5, 2, Q("3 mm")),
    Sketcher.Constraint("DistanceY", -1, 1, 11, 2, Q("108 mm")),
    Sketcher.Constraint("DistanceY", 7, 2, 14, 2, Q("2 mm")),
    Sketcher.Constraint("DistanceX", 12, 1, 12, 2, Q("48.16098 mm")),
])
sketch10.setExpression("Constraints[38]", "Params.sketch10_width")
sketch10.setExpression("Constraints[39]", "Params.sketch10_width2")
sketch10.setExpression("Constraints[40]", "Params.sketch10_height")
sketch10.setExpression("Constraints[41]", "Params.sketch10_length")
pad4 = doc.addObject("PartDesign::Pad", "Pad003")
body.addObject(pad4)
pad4.Profile = sketch10
pad4.setExpression("Length", "Params.pad4_length")

# Sketch on XY plane
sketch11 = doc.addObject("Sketcher::SketchObject", "Sketch010")
body.addObject(sketch11)
sketch11.AttachmentSupport = (doc.XY_Plane, [""])
sketch11.MapMode = "FlatFace"
sketch11.AttachmentOffset = App.Placement(App.Vector(0, 0, 37), App.Rotation())
sketch11.addGeometry([
    Part.Circle(App.Vector(3, 3, 0), App.Vector(0, 0, 1), 2.1),
    Part.Circle(App.Vector(3, 108, 0), App.Vector(0, 0, 1), 2.1),
    Part.Circle(App.Vector(58, 108, 0), App.Vector(0, 0, 1), 2.1),
    Part.Circle(App.Vector(58, 3, 0), App.Vector(0, 0, 1), 2.1),
], False)
sketch11.addConstraint([
    Sketcher.Constraint("Equal", 0, 1),
    Sketcher.Constraint("Equal", 1, 2),
    Sketcher.Constraint("Equal", 2, 3),
    Sketcher.Constraint("Horizontal", 1, 3, 2, 3),
    Sketcher.Constraint("Horizontal", 0, 3, 3, 3),
    Sketcher.Constraint("Vertical", 0, 3, 1, 3),
    Sketcher.Constraint("Vertical", 2, 3, 3, 3),
    Sketcher.Constraint("Diameter", 0, Q("4.2 mm")),
    Sketcher.Constraint("DistanceX", -1, 1, 0, 3, Q("3 mm")),
    Sketcher.Constraint("DistanceY", -1, 1, 0, 3, Q("3 mm")),
    Sketcher.Constraint("DistanceY", -1, 1, 1, 3, Q("108 mm")),
    Sketcher.Constraint("DistanceX", -1, 1, 2, 3, Q("58 mm")),
])
sketch11.setExpression("Constraints[7]", "Params.sketch11_diameter")
pocket7 = doc.addObject("PartDesign::Pocket", "Pocket006")
body.addObject(pocket7)
pocket7.Profile = sketch11
pocket7.setExpression("Length", "Params.pocket7_length")

doc.recompute()
